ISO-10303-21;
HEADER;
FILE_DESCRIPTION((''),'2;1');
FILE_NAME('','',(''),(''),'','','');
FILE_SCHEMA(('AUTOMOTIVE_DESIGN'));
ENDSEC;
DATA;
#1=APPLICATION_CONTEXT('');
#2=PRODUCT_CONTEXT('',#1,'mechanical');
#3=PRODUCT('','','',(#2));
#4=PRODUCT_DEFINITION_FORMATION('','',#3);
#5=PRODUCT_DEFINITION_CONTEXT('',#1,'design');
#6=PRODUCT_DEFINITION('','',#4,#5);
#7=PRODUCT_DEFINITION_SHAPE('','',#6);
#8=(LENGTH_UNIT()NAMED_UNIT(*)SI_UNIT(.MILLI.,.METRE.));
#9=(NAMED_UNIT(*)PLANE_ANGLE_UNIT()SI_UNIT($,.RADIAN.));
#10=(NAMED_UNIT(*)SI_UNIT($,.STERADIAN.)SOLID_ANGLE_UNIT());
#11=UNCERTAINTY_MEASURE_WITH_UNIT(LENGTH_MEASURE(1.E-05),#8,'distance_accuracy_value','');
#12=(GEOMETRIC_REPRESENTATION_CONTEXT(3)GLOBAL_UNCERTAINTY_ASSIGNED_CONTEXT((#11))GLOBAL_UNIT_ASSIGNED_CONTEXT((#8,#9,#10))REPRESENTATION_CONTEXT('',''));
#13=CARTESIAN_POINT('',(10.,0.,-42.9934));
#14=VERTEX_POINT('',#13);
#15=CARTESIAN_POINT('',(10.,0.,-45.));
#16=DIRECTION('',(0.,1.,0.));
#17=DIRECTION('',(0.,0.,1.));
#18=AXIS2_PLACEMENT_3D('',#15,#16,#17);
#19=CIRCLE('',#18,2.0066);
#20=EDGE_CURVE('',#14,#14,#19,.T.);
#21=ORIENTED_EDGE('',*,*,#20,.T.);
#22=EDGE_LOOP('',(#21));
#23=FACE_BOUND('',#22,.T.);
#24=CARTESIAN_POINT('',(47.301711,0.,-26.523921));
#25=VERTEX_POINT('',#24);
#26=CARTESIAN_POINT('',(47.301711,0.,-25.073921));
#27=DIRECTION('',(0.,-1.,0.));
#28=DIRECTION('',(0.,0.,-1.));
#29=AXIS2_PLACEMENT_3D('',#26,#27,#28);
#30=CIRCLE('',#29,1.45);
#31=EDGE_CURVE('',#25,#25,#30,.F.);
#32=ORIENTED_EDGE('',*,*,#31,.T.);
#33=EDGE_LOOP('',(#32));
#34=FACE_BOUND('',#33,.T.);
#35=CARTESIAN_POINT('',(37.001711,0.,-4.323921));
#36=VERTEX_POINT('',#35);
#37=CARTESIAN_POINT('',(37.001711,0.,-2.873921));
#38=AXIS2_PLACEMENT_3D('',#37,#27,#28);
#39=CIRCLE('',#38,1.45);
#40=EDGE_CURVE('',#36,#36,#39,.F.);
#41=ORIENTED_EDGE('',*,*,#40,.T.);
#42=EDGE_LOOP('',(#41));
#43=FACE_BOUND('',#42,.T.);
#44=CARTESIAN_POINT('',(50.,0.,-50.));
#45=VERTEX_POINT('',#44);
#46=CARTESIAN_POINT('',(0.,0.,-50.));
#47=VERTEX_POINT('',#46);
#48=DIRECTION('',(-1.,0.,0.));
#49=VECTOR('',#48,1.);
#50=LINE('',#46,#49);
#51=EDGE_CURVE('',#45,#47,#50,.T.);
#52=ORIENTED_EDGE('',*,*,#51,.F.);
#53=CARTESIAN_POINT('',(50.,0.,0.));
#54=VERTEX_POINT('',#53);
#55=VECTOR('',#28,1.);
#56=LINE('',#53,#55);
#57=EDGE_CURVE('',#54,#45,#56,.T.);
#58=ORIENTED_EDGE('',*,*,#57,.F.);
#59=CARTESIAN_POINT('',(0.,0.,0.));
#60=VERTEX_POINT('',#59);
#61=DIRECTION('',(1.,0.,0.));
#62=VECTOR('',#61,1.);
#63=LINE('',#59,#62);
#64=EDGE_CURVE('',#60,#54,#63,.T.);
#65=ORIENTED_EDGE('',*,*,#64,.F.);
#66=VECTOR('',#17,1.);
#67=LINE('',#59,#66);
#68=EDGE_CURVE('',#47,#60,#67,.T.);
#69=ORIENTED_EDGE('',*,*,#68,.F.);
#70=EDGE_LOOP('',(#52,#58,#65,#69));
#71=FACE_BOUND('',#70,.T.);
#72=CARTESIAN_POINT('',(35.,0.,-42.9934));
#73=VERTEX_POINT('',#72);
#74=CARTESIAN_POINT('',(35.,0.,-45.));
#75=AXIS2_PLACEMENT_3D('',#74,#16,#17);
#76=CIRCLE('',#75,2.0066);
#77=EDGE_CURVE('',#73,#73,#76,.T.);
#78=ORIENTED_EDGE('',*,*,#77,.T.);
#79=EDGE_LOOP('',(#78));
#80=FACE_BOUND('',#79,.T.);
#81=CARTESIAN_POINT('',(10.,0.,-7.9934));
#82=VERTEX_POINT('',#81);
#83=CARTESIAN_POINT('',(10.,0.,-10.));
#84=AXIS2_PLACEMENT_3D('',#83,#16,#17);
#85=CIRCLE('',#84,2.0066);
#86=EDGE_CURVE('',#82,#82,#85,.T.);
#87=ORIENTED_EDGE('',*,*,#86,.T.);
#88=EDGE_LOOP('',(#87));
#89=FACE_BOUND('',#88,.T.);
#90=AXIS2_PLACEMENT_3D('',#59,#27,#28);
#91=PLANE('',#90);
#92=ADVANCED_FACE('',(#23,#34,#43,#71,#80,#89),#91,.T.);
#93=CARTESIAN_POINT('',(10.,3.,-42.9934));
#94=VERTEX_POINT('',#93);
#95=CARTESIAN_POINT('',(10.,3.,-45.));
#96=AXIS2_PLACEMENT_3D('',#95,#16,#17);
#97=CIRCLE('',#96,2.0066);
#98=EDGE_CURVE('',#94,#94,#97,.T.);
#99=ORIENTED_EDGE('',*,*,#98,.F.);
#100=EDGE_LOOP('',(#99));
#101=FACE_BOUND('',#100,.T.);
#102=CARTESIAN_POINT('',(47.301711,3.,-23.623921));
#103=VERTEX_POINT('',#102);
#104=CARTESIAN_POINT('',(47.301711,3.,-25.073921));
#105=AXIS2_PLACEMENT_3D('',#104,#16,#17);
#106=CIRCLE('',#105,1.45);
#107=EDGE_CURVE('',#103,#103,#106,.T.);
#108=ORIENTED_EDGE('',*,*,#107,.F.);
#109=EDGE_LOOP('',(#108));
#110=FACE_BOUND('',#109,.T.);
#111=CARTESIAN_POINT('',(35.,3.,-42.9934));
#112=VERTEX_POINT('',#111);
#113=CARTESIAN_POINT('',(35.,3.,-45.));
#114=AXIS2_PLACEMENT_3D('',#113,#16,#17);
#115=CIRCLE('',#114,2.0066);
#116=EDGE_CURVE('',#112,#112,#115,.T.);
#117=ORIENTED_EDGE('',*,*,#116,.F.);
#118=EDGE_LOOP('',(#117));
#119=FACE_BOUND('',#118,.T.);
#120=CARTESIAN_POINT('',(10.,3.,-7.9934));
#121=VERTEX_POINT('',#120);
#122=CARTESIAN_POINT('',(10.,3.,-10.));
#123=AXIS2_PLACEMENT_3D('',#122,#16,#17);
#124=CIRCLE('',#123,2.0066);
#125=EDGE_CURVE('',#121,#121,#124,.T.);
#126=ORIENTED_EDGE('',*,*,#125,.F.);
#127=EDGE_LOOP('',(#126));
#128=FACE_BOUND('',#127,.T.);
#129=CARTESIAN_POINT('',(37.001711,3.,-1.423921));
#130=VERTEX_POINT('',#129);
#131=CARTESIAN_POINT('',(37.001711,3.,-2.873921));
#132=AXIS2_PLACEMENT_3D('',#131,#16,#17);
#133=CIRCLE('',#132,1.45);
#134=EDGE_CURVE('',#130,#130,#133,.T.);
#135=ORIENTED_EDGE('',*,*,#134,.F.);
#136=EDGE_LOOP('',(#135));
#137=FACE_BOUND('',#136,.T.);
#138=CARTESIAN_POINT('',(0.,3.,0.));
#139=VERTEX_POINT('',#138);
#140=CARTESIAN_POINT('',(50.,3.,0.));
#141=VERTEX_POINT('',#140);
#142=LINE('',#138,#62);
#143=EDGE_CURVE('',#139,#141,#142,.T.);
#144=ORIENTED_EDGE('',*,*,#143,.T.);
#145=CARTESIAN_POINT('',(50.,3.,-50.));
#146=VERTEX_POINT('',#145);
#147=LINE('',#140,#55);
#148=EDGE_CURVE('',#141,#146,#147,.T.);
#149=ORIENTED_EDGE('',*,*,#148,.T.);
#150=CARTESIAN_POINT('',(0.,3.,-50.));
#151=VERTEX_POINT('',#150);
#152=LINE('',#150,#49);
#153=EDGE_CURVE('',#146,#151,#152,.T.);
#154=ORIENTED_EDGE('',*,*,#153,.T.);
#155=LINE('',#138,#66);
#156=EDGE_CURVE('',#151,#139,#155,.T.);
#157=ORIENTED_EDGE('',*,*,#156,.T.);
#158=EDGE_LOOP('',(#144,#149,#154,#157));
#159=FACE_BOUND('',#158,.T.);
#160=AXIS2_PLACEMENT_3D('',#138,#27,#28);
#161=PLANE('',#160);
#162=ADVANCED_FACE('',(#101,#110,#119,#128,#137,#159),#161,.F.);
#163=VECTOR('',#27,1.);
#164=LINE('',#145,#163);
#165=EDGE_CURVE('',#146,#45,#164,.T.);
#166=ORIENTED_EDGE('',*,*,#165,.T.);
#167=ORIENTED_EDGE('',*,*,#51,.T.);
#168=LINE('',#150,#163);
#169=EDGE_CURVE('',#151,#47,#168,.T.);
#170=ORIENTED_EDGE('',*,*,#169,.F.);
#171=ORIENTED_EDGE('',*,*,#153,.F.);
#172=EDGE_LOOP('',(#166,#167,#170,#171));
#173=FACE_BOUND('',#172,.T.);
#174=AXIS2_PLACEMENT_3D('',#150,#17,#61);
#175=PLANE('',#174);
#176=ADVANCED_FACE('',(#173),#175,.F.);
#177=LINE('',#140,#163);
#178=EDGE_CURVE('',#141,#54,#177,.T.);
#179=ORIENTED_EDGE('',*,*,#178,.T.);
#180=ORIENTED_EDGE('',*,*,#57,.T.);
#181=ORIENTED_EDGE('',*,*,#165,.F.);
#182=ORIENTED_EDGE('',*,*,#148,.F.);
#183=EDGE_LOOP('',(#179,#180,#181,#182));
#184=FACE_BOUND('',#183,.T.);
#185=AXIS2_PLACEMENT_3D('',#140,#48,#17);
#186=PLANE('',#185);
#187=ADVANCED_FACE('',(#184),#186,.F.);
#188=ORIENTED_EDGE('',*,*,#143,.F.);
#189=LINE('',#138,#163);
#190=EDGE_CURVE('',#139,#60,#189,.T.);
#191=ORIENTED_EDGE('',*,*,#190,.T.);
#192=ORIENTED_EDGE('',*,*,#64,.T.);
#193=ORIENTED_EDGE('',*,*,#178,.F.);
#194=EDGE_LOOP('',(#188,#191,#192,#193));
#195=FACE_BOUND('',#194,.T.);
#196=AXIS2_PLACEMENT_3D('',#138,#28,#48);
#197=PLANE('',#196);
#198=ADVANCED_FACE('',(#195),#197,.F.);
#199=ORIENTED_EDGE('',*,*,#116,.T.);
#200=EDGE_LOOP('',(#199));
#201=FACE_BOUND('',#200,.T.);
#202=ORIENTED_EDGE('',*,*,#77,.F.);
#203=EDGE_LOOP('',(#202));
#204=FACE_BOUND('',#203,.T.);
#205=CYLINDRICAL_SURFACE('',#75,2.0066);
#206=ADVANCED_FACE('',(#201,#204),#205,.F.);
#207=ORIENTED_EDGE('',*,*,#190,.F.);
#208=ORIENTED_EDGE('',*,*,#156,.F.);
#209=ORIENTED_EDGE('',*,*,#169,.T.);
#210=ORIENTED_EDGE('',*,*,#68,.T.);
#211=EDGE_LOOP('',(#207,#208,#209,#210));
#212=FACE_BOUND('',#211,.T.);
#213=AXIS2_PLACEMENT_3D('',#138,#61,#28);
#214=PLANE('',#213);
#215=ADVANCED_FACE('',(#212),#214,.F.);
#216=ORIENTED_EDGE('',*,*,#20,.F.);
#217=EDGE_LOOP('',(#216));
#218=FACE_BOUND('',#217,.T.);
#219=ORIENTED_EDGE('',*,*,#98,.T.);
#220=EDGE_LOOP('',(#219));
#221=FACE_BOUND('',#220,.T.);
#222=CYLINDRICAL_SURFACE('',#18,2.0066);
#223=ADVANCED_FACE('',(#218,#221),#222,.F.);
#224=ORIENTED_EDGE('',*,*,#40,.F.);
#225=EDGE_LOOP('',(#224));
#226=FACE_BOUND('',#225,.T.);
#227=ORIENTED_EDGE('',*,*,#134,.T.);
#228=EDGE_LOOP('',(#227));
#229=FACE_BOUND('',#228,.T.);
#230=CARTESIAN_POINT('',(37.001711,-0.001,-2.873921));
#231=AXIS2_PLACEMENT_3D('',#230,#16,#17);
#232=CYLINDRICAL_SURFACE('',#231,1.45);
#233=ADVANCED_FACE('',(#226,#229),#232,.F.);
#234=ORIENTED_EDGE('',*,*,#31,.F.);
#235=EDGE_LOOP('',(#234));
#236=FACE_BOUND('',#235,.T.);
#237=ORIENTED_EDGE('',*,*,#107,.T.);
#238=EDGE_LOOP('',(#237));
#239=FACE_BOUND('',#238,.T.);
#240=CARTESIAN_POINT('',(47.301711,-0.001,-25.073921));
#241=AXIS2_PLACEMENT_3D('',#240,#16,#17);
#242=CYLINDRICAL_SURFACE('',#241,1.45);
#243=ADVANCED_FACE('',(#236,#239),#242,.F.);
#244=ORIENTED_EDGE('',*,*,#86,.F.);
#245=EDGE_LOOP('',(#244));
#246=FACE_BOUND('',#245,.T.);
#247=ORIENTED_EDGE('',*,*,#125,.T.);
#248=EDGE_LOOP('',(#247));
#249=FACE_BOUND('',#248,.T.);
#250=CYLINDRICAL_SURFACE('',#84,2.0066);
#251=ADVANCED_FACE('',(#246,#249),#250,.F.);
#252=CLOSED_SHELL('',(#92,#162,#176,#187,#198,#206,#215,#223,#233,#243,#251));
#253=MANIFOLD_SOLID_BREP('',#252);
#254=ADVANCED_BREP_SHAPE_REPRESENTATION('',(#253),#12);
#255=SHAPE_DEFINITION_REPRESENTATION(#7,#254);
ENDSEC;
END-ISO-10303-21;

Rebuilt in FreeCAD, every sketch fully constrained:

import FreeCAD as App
import Part
import Sketcher
Q = App.Units.Quantity


def add_polygon(sketch, points):
    """Adds a closed chain of lines whose ends are joined by coincident constraints."""
    first, n = sketch.GeometryCount, len(points)
    for a, b in zip(points, points[1:] + points[:1]):
        sketch.addGeometry(Part.LineSegment(App.Vector(*a, 0), App.Vector(*b, 0)), False)
    for i in range(n):
        sketch.addConstraint(Sketcher.Constraint("Coincident", first + i, 2, first + (i + 1) % n, 1))

doc = App.newDocument("Part")
body = doc.addObject("PartDesign::Body", "Body")

sketch1 = body.newObject("Sketcher::SketchObject", "Sketch")
sketch1.AttachmentSupport = (doc.getObject("XZ_Plane"), [""])
sketch1.MapMode = "FlatFace"
add_polygon(sketch1, [(0, -50), (0, 0), (50, 0), (50, -50)])
sketch1.addConstraint(Sketcher.Constraint("Vertical", 0))
sketch1.addConstraint(Sketcher.Constraint("Horizontal", 1))
sketch1.addConstraint(Sketcher.Constraint("Vertical", 2))
sketch1.addConstraint(Sketcher.Constraint("Horizontal", 3))
sketch1.addConstraint(Sketcher.Constraint("Coincident", 0, 2, -1, 1))
sketch1.addConstraint(Sketcher.Constraint("Equal", 3, 0))
sketch1.addConstraint(Sketcher.Constraint("DistanceX", 1, 1, 1, 2, Q("50 mm")))
pad1 = body.newObject("PartDesign::Pad", "Pad")
pad1.Profile = sketch1
pad1.Length = 3
pad1.Reversed = True

sketch2 = body.newObject("Sketcher::SketchObject", "Sketch001")
sketch2.AttachmentSupport = (doc.getObject("XZ_Plane"), [""])
sketch2.MapMode = "FlatFace"
sketch2.AttachmentOffset = App.Placement(App.Vector(0, 0, -3), App.Rotation())
sketch2.addGeometry(Part.Circle(App.Vector(10, -45, 0), App.Vector(0, 0, 1), 2), False)
sketch2.addGeometry(Part.Circle(App.Vector(35, -45, 0), App.Vector(0, 0, 1), 2), False)
sketch2.addGeometry(Part.Circle(App.Vector(10, -10, 0), App.Vector(0, 0, 1), 2), False)
sketch2.addConstraint(Sketcher.Constraint("Equal", 0, 1))
sketch2.addConstraint(Sketcher.Constraint("Equal", 1, 2))
sketch2.addConstraint(Sketcher.Constraint("Horizontal", 0, 3, 1, 3))
sketch2.addConstraint(Sketcher.Constraint("Vertical", 0, 3, 2, 3))
sketch2.addConstraint(Sketcher.Constraint("DistanceX", -1, 1, 0, 3, Q("10 mm")))
sketch2.addConstraint(Sketcher.Constraint("DistanceY", 0, 3, -1, 1, Q("45 mm")))
sketch2.addConstraint(Sketcher.Constraint("DistanceX", -1, 1, 1, 3, Q("35 mm")))
sketch2.addConstraint(Sketcher.Constraint("DistanceY", 2, 3, -1, 1, Q("10 mm")))
sketch2.addConstraint(Sketcher.Constraint("Diameter", 0, Q("4.0132 mm")))
pocket1 = body.newObject("PartDesign::Pocket", "Pocket")
pocket1.Profile = sketch2
pocket1.Type = "ThroughAll"
pocket1.Reversed = True

sketch3 = body.newObject("Sketcher::SketchObject", "Sketch002")
sketch3.AttachmentSupport = (doc.getObject("XZ_Plane"), [""])
sketch3.MapMode = "FlatFace"
sketch3.AttachmentOffset = App.Placement(App.Vector(0, 0, -3), App.Rotation())
sketch3.addGeometry(Part.Circle(App.Vector(47.3, -25.1, 0), App.Vector(0, 0, 1), 1.4), False)
sketch3.addConstraint(Sketcher.Constraint("Diameter", 0, Q("2.9 mm")))
sketch3.addConstraint(Sketcher.Constraint("DistanceX", -1, 1, 0, 3, Q("47.301711 mm")))
sketch3.addConstraint(Sketcher.Constraint("DistanceY", 0, 3, -1, 1, Q("25.073921 mm")))
pocket2 = body.newObject("PartDesign::Pocket", "Pocket001")
pocket2.Profile = sketch3
pocket2.Type = "UpToFirst"
pocket2.Reversed = True

sketch4 = body.newObject("Sketcher::SketchObject", "Sketch003")
sketch4.AttachmentSupport = (doc.getObject("XZ_Plane"), [""])
sketch4.MapMode = "FlatFace"
sketch4.AttachmentOffset = App.Placement(App.Vector(0, 0, -3), App.Rotation())
sketch4.addGeometry(Part.Circle(App.Vector(37, -2.9, 0), App.Vector(0, 0, 1), 1.4), False)
sketch4.addConstraint(Sketcher.Constraint("Diameter", 0, Q("2.9 mm")))
sketch4.addConstraint(Sketcher.Constraint("DistanceX", -1, 1, 0, 3, Q("37.001711 mm")))
sketch4.addConstraint(Sketcher.Constraint("DistanceY", 0, 3, -1, 1, Q("2.873921 mm")))
pocket3 = body.newObject("PartDesign::Pocket", "Pocket002")
pocket3.Profile = sketch4
pocket3.Type = "UpToFirst"
pocket3.Reversed = True

doc.recompute()
